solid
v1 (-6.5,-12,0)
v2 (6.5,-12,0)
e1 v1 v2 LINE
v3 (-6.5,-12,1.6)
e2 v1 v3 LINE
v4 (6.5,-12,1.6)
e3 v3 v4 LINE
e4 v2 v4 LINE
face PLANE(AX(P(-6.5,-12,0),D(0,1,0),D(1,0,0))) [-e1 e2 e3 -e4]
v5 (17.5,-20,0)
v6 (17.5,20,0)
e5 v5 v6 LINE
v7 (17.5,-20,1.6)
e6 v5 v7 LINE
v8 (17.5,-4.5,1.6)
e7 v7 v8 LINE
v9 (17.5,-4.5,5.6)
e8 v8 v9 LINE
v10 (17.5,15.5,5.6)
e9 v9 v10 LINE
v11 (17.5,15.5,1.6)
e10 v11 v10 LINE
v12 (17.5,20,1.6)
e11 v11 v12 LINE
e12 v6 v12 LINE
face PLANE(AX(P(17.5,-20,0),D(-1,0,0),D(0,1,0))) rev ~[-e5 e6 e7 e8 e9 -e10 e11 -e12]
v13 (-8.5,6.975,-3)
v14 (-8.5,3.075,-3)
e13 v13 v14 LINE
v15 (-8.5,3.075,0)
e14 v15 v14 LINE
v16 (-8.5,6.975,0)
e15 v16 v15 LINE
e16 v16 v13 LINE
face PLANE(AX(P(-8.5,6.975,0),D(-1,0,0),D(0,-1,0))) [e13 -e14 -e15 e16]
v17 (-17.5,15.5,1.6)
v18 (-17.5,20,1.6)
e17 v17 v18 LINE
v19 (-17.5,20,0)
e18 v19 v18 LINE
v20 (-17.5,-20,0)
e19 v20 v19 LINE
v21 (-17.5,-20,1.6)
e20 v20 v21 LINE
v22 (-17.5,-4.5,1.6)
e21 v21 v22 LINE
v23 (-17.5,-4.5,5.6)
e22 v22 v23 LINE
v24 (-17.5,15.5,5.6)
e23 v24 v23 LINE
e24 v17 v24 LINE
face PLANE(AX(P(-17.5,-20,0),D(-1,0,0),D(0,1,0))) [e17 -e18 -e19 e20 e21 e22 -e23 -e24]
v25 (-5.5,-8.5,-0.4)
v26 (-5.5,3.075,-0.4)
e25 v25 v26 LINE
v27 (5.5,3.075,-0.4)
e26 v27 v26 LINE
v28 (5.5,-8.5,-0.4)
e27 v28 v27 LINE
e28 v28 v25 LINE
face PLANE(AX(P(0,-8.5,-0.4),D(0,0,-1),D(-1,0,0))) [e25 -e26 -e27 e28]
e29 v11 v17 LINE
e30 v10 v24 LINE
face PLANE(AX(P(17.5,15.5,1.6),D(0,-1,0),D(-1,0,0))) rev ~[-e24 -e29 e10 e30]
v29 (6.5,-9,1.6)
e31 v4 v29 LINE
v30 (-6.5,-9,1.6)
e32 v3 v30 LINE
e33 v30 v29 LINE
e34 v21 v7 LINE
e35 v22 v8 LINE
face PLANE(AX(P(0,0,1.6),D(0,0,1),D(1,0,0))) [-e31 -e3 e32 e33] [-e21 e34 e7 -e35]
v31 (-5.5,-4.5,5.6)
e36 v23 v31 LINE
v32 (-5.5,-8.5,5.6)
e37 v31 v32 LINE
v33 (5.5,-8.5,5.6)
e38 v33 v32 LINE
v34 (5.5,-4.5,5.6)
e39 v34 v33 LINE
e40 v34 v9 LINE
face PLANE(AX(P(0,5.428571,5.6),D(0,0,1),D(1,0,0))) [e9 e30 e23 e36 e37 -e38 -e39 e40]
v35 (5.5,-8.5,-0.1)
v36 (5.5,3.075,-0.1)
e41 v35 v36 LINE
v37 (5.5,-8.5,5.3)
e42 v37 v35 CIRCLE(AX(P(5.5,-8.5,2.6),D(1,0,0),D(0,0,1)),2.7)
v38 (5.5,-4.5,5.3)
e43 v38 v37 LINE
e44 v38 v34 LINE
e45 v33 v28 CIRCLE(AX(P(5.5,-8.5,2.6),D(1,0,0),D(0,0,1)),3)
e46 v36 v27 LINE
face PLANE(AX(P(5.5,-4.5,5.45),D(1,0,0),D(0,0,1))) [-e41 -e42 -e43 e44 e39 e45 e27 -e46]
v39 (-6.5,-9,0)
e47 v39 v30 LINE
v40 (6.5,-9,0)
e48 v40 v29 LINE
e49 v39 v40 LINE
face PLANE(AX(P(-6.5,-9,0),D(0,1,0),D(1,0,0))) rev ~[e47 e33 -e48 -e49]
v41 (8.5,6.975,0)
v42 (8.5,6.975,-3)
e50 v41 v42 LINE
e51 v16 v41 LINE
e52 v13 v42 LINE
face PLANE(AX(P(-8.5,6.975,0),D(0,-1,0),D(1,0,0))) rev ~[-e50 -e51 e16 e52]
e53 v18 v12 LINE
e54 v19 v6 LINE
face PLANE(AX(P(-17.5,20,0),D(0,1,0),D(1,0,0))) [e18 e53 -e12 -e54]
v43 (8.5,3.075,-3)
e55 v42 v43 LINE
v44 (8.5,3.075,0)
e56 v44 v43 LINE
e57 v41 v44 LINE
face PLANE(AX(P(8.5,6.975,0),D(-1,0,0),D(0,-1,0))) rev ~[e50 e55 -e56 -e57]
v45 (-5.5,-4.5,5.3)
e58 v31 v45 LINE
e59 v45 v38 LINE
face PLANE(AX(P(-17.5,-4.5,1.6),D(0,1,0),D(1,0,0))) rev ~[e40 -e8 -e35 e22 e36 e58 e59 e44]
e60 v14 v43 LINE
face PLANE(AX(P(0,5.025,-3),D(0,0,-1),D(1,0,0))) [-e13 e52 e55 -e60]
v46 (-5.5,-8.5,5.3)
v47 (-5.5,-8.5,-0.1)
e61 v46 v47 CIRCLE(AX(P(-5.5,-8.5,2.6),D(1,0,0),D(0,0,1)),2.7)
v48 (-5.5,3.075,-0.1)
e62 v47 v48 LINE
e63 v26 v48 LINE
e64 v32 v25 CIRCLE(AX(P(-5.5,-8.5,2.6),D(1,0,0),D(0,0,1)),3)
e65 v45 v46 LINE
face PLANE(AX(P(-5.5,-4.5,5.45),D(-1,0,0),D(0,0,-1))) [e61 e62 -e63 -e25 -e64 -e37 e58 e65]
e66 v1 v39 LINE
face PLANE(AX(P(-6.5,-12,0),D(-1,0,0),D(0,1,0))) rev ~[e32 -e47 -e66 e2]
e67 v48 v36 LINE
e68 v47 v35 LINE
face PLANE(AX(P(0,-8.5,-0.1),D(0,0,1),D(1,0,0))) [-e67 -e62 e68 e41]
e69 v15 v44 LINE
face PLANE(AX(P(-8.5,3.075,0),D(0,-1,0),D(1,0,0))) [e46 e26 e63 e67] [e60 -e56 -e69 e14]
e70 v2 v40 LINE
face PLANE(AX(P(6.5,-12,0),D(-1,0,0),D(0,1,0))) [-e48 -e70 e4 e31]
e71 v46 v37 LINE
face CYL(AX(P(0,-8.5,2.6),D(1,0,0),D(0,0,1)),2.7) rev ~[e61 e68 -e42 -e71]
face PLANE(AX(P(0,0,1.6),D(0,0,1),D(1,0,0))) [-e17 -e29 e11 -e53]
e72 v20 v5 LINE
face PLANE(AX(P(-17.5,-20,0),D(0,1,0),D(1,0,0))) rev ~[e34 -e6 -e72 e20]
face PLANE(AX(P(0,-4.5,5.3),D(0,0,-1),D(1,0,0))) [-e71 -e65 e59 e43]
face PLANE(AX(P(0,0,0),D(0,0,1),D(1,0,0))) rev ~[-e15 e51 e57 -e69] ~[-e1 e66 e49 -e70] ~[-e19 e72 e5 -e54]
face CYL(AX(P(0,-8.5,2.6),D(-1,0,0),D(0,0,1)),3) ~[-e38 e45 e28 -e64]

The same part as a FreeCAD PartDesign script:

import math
import FreeCAD as App
import Part
import Sketcher

doc = App.newDocument("Part")
body = doc.addObject("PartDesign::Body", "Body")

# Sketch on XY plane
sketch1 = body.newObject("Sketcher::SketchObject", "Sketch")
sketch1.AttachmentSupport = (doc.getObject("XY_Plane"), [""])
sketch1.MapMode = "FlatFace"
sketch1.addGeometry(Part.LineSegment(App.Vector(-17.5, 20, 0), App.Vector(-17.5, -20, 0)), False)
sketch1.addGeometry(Part.LineSegment(App.Vector(-17.5, -20, 0), App.Vector(17.5, -20, 0)), False)
sketch1.addGeometry(Part.LineSegment(App.Vector(17.5, -20, 0), App.Vector(17.5, 20, 0)), False)
sketch1.addGeometry(Part.LineSegment(App.Vector(17.5, 20, 0), App.Vector(-17.5, 20, 0)), False)
sketch1.addGeometry(Part.LineSegment(App.Vector(6.5, -12, 0), App.Vector(-6.5, -12, 0)), False)
sketch1.addGeometry(Part.LineSegment(App.Vector(-6.5, -12, 0), App.Vector(-6.5, -9, 0)), False)
sketch1.addGeometry(Part.LineSegment(App.Vector(-6.5, -9, 0), App.Vector(6.5, -9, 0)), False)
sketch1.addGeometry(Part.LineSegment(App.Vector(6.5, -9, 0), App.Vector(6.5, -12, 0)), False)
sketch1.addConstraint(Sketcher.Constraint("Coincident", 0, 2, 1, 1))
sketch1.addConstraint(Sketcher.Constraint("Coincident", 1, 2, 2, 1))
sketch1.addConstraint(Sketcher.Constraint("Coincident", 2, 2, 3, 1))
sketch1.addConstraint(Sketcher.Constraint("Coincident", 3, 2, 0, 1))
sketch1.addConstraint(Sketcher.Constraint("Coincident", 4, 2, 5, 1))
sketch1.addConstraint(Sketcher.Constraint("Coincident", 5, 2, 6, 1))
sketch1.addConstraint(Sketcher.Constraint("Coincident", 6, 2, 7, 1))
sketch1.addConstraint(Sketcher.Constraint("Coincident", 7, 2, 4, 1))
sketch1.addConstraint(Sketcher.Constraint("Vertical", 0))
sketch1.addConstraint(Sketcher.Constraint("Horizontal", 1))
sketch1.addConstraint(Sketcher.Constraint("Vertical", 2))
sketch1.addConstraint(Sketcher.Constraint("Horizontal", 3))
sketch1.addConstraint(Sketcher.Constraint("Horizontal", 4))
sketch1.addConstraint(Sketcher.Constraint("Vertical", 5))
sketch1.addConstraint(Sketcher.Constraint("Horizontal", 6))
sketch1.addConstraint(Sketcher.Constraint("Vertical", 7))
sketch1.addConstraint(Sketcher.Constraint("Symmetric", 0, 2, 2, 2, -1, 1))
sketch1.addConstraint(Sketcher.Constraint("DistanceX", 1, 1, 1, 2, 35.0))
sketch1.addConstraint(Sketcher.Constraint("DistanceX", 4, 2, 4, 1, 13.0))
sketch1.addConstraint(Sketcher.Constraint("DistanceY", 0, 2, 0, 1, 40.0))
sketch1.addConstraint(Sketcher.Constraint("DistanceY", 5, 1, 5, 2, 3.0))
sketch1.addConstraint(Sketcher.Constraint("DistanceY", 4, 2, -1, 1, 12.0))
sketch1.addConstraint(Sketcher.Constraint("DistanceX", 0, 2, 4, 2, 11.0))
pad1 = body.newObject("PartDesign::Pad", "Pad")
pad1.Profile = sketch1
pad1.Length = 1.6

# Sketch on XY plane
sketch2 = body.newObject("Sketcher::SketchObject", "Sketch001")
sketch2.AttachmentSupport = (doc.getObject("XY_Plane"), [""])
sketch2.MapMode = "FlatFace"
sketch2.AttachmentOffset = App.Placement(App.Vector(0, 0, 1.6), App.Rotation())
sketch2.addGeometry(Part.LineSegment(App.Vector(17.5, 15.5, 0), App.Vector(-17.5, 15.5, 0)), False)
sketch2.addGeometry(Part.LineSegment(App.Vector(-17.5, 15.5, 0), App.Vector(-17.5, -4.5, 0)), False)
sketch2.addGeometry(Part.LineSegment(App.Vector(-17.5, -4.5, 0), App.Vector(17.5, -4.5, 0)), False)
sketch2.addGeometry(Part.LineSegment(App.Vector(17.5, -4.5, 0), App.Vector(17.5, 15.5, 0)), False)
sketch2.addConstraint(Sketcher.Constraint("Coincident", 0, 2, 1, 1))
sketch2.addConstraint(Sketcher.Constraint("Coincident", 1, 2, 2, 1))
sketch2.addConstraint(Sketcher.Constraint("Coincident", 2, 2, 3, 1))
sketch2.addConstraint(Sketcher.Constraint("Coincident", 3, 2, 0, 1))
sketch2.addConstraint(Sketcher.Constraint("Horizontal", 0))
sketch2.addConstraint(Sketcher.Constraint("Vertical", 1))
sketch2.addConstraint(Sketcher.Constraint("Horizontal", 2))
sketch2.addConstraint(Sketcher.Constraint("Vertical", 3))
sketch2.addConstraint(Sketcher.Constraint("DistanceX", 0, 2, 0, 1, 35.0))
sketch2.addConstraint(Sketcher.Constraint("DistanceY", 1, 2, 1, 1, 20.0))
sketch2.addConstraint(Sketcher.Constraint("DistanceX", 0, 2, -1, 1, 17.5))
sketch2.addConstraint(Sketcher.Constraint("DistanceY", -1, 1, 0, 2, 15.5))
pad2 = body.newObject("PartDesign::Pad", "Pad001")
pad2.Profile = sketch2
pad2.Length = 4

# Sketch on XZ plane
sketch3 = body.newObject("Sketcher::SketchObject", "Sketch002")
sketch3.AttachmentSupport = (doc.getObject("XZ_Plane"), [""])
sketch3.MapMode = "FlatFace"
sketch3.AttachmentOffset = App.Placement(App.Vector(0, 0, 4.5), App.Rotation())
sketch3.addGeometry(Part.LineSegment(App.Vector(-5.5, 5.6, 0), App.Vector(-5.5, 5.3, 0)), False)
sketch3.addGeometry(Part.LineSegment(App.Vector(-5.5, 5.3, 0), App.Vector(5.5, 5.3, 0)), False)
sketch3.addGeometry(Part.LineSegment(App.Vector(5.5, 5.3, 0), App.Vector(5.5, 5.6, 0)), False)
sketch3.addGeometry(Part.LineSegment(App.Vector(5.5, 5.6, 0), App.Vector(-5.5, 5.6, 0)), False)
sketch3.addConstraint(Sketcher.Constraint("Coincident", 0, 2, 1, 1))
sketch3.addConstraint(Sketcher.Constraint("Coincident", 1, 2, 2, 1))
sketch3.addConstraint(Sketcher.Constraint("Coincident", 2, 2, 3, 1))
sketch3.addConstraint(Sketcher.Constraint("Coincident", 3, 2, 0, 1))
sketch3.addConstraint(Sketcher.Constraint("Vertical", 0))
sketch3.addConstraint(Sketcher.Constraint("Horizontal", 1))
sketch3.addConstraint(Sketcher.Constraint("Vertical", 2))
sketch3.addConstraint(Sketcher.Constraint("Horizontal", 3))
sketch3.addConstraint(Sketcher.Constraint("DistanceX", 1, 1, 1, 2, 11.0))
sketch3.addConstraint(Sketcher.Constraint("DistanceY", 0, 2, 0, 1, 0.3))
sketch3.addConstraint(Sketcher.Constraint("DistanceX", 0, 2, -1, 1, 5.5))
sketch3.addConstraint(Sketcher.Constraint("DistanceY", -1, 1, 0, 2, 5.3))

# Sketch on YZ plane
sketch4 = body.newObject("Sketcher::SketchObject", "Sketch003")
sketch4.AttachmentSupport = (doc.getObject("YZ_Plane"), [""])
sketch4.MapMode = "FlatFace"
sketch4.addGeometry(Part.LineSegment(App.Vector(-4.5, 5.6, 0), App.Vector(-8.5, 5.6, 0)), False)
sketch4.addGeometry(Part.ArcOfCircle(Part.Circle(App.Vector(-8.5, 2.6, 0), App.Vector(0, 0, 1), 3), math.radians(90), math.radians(270)), False)
sketch4.addGeometry(Part.LineSegment(App.Vector(-8.5, -0.4, 0), App.Vector(6.975, -0.4, 0)), False)
sketch4.addConstraint(Sketcher.Constraint("Tangent", 0, 2, 1, 1))
sketch4.addConstraint(Sketcher.Constraint("Tangent", 1, 2, 2, 1))
sketch4.addConstraint(Sketcher.Constraint("Horizontal", 0))
sketch4.addConstraint(Sketcher.Constraint("Horizontal", 2))
sketch4.addConstraint(Sketcher.Constraint("Radius", 1, 3.0))
sketch4.addConstraint(Sketcher.Constraint("DistanceX", 0, 2, 0, 1, 4.0))
sketch4.addConstraint(Sketcher.Constraint("DistanceX", 1, 3, -1, 1, 8.5))
sketch4.addConstraint(Sketcher.Constraint("DistanceY", -1, 1, 1, 3, 2.6))
sketch4.addConstraint(Sketcher.Constraint("DistanceX", 2, 1, 2, 2, 15.475))
doc.recompute()

additivepipe = body.newObject("PartDesign::AdditivePipe", "AdditivePipe")
additivepipe.Profile = sketch3
additivepipe.Spine = (sketch4, ["Edge1", "Edge2", "Edge3"])

# Sketch on XY plane
sketch5 = body.newObject("Sketcher::SketchObject", "Sketch004")
sketch5.AttachmentSupport = (doc.getObject("XY_Plane"), [""])
sketch5.MapMode = "FlatFace"
sketch5.addGeometry(Part.LineSegment(App.Vector(-8.5, 3.075, 0), App.Vector(-8.5, 6.975, 0)), False)
sketch5.addGeometry(Part.LineSegment(App.Vector(-8.5, 6.975, 0), App.Vector(8.5, 6.975, 0)), False)
sketch5.addGeometry(Part.LineSegment(App.Vector(8.5, 6.975, 0), App.Vector(8.5, 3.075, 0)), False)
sketch5.addGeometry(Part.LineSegment(App.Vector(8.5, 3.075, 0), App.Vector(-8.5, 3.075, 0)), False)
sketch5.addConstraint(Sketcher.Constraint("Coincident", 0, 2, 1, 1))
sketch5.addConstraint(Sketcher.Constraint("Coincident", 1, 2, 2, 1))
sketch5.addConstraint(Sketcher.Constraint("Coincident", 2, 2, 3, 1))
sketch5.addConstraint(Sketcher.Constraint("Coincident", 3, 2, 0, 1))
sketch5.addConstraint(Sketcher.Constraint("Vertical", 0))
sketch5.addConstraint(Sketcher.Constraint("Horizontal", 1))
sketch5.addConstraint(Sketcher.Constraint("Vertical", 2))
sketch5.addConstraint(Sketcher.Constraint("Horizontal", 3))
sketch5.addConstraint(Sketcher.Constraint("DistanceX", 1, 1, 1, 2, 17.0))
sketch5.addConstraint(Sketcher.Constraint("DistanceY", 0, 1, 0, 2, 3.9))
sketch5.addConstraint(Sketcher.Constraint("DistanceX", 0, 2, -1, 1, 8.5))
sketch5.addConstraint(Sketcher.Constraint("DistanceY", -1, 1, 0, 2, 6.975))
pad3 = body.newObject("PartDesign::Pad", "Pad002")
pad3.Profile = sketch5
pad3.Length = 3
pad3.Reversed = True

doc.recompute()
